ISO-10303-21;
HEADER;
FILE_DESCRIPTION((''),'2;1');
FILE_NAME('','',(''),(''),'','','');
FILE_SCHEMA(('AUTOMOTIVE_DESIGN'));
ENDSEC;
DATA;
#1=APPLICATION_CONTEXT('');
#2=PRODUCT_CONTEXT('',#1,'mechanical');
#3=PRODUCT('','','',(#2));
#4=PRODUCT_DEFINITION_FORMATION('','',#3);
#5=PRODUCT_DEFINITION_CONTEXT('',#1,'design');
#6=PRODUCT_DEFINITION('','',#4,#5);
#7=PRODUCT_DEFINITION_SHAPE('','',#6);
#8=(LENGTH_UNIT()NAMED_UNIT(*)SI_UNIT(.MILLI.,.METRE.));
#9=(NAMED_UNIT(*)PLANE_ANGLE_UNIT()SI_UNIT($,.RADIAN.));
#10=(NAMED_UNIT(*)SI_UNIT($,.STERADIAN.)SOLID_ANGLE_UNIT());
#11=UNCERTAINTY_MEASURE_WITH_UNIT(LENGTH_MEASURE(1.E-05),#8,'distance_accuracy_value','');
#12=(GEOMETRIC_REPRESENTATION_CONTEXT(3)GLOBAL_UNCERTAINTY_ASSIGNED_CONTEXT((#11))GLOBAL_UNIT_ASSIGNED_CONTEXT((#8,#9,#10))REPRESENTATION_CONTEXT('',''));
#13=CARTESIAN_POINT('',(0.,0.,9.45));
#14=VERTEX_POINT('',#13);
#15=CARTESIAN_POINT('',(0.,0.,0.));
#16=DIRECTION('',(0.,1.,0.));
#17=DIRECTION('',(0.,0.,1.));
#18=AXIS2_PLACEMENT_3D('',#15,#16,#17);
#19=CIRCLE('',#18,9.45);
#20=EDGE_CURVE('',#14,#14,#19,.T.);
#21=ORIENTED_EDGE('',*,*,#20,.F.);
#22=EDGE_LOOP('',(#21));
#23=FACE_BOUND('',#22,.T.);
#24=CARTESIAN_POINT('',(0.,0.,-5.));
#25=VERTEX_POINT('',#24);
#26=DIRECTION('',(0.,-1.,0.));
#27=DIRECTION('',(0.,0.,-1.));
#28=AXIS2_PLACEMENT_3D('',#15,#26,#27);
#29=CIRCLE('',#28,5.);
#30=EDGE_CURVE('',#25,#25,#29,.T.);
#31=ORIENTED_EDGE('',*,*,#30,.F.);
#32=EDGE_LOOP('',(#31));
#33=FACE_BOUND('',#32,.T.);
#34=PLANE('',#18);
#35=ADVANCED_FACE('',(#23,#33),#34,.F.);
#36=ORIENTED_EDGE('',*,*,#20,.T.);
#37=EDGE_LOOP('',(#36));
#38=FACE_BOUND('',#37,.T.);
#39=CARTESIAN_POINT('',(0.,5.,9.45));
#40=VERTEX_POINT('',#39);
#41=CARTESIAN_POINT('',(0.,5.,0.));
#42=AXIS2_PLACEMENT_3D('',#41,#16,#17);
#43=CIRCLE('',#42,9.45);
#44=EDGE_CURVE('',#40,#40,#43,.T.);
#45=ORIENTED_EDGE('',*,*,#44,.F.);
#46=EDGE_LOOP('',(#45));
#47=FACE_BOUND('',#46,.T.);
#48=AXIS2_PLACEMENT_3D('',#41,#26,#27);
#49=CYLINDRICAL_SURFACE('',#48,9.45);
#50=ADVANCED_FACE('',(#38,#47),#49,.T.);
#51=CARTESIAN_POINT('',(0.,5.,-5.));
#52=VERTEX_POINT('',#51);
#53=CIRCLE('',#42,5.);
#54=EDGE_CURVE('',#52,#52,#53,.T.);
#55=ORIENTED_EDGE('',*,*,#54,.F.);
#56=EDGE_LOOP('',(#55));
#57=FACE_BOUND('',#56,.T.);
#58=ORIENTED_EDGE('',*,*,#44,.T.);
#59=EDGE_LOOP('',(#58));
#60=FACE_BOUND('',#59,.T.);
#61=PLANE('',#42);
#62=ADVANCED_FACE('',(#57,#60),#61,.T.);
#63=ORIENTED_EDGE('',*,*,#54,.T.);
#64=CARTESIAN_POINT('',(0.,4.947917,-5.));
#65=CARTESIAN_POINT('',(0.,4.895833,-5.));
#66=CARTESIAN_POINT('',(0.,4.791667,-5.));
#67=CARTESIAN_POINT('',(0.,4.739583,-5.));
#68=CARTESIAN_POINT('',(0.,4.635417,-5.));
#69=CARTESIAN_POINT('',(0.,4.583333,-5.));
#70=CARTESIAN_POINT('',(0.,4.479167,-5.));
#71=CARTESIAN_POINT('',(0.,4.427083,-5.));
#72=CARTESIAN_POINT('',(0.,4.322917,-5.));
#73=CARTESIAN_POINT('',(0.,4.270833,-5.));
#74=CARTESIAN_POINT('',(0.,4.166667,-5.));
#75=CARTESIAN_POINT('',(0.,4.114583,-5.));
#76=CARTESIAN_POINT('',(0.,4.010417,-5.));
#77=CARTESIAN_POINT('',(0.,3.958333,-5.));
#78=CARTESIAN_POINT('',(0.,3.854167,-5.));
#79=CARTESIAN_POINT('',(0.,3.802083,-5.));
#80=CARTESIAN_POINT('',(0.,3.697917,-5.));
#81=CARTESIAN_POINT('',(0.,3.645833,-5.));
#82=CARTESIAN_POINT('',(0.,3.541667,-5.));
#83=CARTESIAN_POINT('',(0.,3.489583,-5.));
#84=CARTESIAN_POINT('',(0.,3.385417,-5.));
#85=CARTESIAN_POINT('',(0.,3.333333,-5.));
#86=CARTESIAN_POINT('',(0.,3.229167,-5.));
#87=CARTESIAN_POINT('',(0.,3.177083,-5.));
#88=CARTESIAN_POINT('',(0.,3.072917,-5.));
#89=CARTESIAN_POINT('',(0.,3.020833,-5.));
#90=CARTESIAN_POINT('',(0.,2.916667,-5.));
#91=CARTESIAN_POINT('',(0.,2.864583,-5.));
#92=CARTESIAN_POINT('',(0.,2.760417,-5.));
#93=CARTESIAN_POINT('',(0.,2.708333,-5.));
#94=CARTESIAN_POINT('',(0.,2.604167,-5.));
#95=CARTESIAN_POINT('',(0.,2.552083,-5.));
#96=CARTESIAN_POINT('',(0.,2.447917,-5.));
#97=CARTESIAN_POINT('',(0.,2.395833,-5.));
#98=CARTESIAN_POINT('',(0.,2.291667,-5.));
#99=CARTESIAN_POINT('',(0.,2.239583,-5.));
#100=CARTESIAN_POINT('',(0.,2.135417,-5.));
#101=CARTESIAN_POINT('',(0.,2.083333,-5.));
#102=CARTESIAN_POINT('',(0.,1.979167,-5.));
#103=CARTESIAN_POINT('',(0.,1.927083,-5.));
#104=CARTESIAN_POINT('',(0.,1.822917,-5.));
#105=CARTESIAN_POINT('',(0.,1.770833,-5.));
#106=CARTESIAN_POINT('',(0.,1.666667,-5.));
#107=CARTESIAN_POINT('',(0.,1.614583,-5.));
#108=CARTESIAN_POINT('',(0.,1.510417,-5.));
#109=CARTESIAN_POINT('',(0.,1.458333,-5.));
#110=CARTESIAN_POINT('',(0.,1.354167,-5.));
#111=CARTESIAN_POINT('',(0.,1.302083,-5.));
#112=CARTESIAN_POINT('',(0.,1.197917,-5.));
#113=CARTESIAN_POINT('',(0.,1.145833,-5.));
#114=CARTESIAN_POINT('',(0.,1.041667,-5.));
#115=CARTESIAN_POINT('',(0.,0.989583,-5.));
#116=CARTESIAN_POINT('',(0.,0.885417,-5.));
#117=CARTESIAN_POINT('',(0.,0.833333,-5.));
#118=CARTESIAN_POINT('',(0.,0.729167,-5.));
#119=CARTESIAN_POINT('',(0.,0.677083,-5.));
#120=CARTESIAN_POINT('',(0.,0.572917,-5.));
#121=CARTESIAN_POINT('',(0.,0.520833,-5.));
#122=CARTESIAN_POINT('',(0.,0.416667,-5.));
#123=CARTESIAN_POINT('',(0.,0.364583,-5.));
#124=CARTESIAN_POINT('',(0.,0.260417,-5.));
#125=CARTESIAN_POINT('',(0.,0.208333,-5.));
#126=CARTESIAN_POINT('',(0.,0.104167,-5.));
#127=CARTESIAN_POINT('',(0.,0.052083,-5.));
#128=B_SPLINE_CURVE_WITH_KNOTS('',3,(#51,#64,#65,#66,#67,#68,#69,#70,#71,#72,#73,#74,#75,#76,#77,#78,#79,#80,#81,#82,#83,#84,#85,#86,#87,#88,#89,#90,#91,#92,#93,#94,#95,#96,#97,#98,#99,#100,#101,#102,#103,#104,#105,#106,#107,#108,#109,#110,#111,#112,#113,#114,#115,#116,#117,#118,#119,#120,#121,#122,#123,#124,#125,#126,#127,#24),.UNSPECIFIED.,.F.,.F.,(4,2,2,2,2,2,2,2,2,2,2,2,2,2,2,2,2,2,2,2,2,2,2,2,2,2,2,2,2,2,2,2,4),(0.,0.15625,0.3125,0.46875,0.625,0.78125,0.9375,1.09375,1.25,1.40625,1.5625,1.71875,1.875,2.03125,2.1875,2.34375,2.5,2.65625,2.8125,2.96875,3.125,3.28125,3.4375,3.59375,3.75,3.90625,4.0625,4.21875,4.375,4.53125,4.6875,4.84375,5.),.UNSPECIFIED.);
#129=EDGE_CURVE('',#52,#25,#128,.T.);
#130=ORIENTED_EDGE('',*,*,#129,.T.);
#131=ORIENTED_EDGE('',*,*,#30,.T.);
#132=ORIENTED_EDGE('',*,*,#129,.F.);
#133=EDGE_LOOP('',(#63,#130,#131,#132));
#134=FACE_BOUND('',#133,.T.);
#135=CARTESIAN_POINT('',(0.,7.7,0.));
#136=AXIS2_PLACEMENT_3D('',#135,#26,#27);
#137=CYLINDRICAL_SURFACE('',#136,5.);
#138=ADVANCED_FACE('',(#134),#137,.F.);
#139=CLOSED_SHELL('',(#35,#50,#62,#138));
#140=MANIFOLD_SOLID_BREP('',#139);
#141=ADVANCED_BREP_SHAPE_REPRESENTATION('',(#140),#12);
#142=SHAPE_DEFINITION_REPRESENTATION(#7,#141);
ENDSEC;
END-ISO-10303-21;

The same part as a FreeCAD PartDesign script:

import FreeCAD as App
import Part
import Sketcher
from FreeCAD import Vector
Q = App.Units.Quantity

doc = App.newDocument("Part")
body = doc.addObject("PartDesign::Body", "Body")

# Sketch on XZ plane
sketch1 = body.newObject("Sketcher::SketchObject", "Sketch")
sketch1.AttachmentSupport = (doc.getObject("XZ_Plane"), [""])
sketch1.MapMode = "FlatFace"
sketch1.addGeometry(Part.Circle(Vector(0, 0, 0), Vector(0, 0, 1), 9), False)
sketch1.addConstraint(Sketcher.Constraint("Coincident", 0, 3, -1, 1))
sketch1.addConstraint(Sketcher.Constraint("Diameter", 0, Q("18.9 mm")))
pad1 = body.newObject("PartDesign::Pad", "Pad")
pad1.Profile = sketch1
pad1.Length = 5
pad1.Reversed = True

# Sketch on XZ plane
sketch2 = body.newObject("Sketcher::SketchObject", "Sketch001")
sketch2.AttachmentSupport = (doc.getObject("XZ_Plane"), [""])
sketch2.MapMode = "FlatFace"
sketch2.addGeometry(Part.Circle(Vector(0, 0, 0), Vector(0, 0, 1), 5), False)
sketch2.addConstraint(Sketcher.Constraint("Coincident", 0, 3, -1, 1))
sketch2.addConstraint(Sketcher.Constraint("Diameter", 0, Q("10 mm")))
pocket1 = body.newObject("PartDesign::Pocket", "Pocket")
pocket1.Profile = sketch2
pocket1.Length = 7.7

doc.recompute()
